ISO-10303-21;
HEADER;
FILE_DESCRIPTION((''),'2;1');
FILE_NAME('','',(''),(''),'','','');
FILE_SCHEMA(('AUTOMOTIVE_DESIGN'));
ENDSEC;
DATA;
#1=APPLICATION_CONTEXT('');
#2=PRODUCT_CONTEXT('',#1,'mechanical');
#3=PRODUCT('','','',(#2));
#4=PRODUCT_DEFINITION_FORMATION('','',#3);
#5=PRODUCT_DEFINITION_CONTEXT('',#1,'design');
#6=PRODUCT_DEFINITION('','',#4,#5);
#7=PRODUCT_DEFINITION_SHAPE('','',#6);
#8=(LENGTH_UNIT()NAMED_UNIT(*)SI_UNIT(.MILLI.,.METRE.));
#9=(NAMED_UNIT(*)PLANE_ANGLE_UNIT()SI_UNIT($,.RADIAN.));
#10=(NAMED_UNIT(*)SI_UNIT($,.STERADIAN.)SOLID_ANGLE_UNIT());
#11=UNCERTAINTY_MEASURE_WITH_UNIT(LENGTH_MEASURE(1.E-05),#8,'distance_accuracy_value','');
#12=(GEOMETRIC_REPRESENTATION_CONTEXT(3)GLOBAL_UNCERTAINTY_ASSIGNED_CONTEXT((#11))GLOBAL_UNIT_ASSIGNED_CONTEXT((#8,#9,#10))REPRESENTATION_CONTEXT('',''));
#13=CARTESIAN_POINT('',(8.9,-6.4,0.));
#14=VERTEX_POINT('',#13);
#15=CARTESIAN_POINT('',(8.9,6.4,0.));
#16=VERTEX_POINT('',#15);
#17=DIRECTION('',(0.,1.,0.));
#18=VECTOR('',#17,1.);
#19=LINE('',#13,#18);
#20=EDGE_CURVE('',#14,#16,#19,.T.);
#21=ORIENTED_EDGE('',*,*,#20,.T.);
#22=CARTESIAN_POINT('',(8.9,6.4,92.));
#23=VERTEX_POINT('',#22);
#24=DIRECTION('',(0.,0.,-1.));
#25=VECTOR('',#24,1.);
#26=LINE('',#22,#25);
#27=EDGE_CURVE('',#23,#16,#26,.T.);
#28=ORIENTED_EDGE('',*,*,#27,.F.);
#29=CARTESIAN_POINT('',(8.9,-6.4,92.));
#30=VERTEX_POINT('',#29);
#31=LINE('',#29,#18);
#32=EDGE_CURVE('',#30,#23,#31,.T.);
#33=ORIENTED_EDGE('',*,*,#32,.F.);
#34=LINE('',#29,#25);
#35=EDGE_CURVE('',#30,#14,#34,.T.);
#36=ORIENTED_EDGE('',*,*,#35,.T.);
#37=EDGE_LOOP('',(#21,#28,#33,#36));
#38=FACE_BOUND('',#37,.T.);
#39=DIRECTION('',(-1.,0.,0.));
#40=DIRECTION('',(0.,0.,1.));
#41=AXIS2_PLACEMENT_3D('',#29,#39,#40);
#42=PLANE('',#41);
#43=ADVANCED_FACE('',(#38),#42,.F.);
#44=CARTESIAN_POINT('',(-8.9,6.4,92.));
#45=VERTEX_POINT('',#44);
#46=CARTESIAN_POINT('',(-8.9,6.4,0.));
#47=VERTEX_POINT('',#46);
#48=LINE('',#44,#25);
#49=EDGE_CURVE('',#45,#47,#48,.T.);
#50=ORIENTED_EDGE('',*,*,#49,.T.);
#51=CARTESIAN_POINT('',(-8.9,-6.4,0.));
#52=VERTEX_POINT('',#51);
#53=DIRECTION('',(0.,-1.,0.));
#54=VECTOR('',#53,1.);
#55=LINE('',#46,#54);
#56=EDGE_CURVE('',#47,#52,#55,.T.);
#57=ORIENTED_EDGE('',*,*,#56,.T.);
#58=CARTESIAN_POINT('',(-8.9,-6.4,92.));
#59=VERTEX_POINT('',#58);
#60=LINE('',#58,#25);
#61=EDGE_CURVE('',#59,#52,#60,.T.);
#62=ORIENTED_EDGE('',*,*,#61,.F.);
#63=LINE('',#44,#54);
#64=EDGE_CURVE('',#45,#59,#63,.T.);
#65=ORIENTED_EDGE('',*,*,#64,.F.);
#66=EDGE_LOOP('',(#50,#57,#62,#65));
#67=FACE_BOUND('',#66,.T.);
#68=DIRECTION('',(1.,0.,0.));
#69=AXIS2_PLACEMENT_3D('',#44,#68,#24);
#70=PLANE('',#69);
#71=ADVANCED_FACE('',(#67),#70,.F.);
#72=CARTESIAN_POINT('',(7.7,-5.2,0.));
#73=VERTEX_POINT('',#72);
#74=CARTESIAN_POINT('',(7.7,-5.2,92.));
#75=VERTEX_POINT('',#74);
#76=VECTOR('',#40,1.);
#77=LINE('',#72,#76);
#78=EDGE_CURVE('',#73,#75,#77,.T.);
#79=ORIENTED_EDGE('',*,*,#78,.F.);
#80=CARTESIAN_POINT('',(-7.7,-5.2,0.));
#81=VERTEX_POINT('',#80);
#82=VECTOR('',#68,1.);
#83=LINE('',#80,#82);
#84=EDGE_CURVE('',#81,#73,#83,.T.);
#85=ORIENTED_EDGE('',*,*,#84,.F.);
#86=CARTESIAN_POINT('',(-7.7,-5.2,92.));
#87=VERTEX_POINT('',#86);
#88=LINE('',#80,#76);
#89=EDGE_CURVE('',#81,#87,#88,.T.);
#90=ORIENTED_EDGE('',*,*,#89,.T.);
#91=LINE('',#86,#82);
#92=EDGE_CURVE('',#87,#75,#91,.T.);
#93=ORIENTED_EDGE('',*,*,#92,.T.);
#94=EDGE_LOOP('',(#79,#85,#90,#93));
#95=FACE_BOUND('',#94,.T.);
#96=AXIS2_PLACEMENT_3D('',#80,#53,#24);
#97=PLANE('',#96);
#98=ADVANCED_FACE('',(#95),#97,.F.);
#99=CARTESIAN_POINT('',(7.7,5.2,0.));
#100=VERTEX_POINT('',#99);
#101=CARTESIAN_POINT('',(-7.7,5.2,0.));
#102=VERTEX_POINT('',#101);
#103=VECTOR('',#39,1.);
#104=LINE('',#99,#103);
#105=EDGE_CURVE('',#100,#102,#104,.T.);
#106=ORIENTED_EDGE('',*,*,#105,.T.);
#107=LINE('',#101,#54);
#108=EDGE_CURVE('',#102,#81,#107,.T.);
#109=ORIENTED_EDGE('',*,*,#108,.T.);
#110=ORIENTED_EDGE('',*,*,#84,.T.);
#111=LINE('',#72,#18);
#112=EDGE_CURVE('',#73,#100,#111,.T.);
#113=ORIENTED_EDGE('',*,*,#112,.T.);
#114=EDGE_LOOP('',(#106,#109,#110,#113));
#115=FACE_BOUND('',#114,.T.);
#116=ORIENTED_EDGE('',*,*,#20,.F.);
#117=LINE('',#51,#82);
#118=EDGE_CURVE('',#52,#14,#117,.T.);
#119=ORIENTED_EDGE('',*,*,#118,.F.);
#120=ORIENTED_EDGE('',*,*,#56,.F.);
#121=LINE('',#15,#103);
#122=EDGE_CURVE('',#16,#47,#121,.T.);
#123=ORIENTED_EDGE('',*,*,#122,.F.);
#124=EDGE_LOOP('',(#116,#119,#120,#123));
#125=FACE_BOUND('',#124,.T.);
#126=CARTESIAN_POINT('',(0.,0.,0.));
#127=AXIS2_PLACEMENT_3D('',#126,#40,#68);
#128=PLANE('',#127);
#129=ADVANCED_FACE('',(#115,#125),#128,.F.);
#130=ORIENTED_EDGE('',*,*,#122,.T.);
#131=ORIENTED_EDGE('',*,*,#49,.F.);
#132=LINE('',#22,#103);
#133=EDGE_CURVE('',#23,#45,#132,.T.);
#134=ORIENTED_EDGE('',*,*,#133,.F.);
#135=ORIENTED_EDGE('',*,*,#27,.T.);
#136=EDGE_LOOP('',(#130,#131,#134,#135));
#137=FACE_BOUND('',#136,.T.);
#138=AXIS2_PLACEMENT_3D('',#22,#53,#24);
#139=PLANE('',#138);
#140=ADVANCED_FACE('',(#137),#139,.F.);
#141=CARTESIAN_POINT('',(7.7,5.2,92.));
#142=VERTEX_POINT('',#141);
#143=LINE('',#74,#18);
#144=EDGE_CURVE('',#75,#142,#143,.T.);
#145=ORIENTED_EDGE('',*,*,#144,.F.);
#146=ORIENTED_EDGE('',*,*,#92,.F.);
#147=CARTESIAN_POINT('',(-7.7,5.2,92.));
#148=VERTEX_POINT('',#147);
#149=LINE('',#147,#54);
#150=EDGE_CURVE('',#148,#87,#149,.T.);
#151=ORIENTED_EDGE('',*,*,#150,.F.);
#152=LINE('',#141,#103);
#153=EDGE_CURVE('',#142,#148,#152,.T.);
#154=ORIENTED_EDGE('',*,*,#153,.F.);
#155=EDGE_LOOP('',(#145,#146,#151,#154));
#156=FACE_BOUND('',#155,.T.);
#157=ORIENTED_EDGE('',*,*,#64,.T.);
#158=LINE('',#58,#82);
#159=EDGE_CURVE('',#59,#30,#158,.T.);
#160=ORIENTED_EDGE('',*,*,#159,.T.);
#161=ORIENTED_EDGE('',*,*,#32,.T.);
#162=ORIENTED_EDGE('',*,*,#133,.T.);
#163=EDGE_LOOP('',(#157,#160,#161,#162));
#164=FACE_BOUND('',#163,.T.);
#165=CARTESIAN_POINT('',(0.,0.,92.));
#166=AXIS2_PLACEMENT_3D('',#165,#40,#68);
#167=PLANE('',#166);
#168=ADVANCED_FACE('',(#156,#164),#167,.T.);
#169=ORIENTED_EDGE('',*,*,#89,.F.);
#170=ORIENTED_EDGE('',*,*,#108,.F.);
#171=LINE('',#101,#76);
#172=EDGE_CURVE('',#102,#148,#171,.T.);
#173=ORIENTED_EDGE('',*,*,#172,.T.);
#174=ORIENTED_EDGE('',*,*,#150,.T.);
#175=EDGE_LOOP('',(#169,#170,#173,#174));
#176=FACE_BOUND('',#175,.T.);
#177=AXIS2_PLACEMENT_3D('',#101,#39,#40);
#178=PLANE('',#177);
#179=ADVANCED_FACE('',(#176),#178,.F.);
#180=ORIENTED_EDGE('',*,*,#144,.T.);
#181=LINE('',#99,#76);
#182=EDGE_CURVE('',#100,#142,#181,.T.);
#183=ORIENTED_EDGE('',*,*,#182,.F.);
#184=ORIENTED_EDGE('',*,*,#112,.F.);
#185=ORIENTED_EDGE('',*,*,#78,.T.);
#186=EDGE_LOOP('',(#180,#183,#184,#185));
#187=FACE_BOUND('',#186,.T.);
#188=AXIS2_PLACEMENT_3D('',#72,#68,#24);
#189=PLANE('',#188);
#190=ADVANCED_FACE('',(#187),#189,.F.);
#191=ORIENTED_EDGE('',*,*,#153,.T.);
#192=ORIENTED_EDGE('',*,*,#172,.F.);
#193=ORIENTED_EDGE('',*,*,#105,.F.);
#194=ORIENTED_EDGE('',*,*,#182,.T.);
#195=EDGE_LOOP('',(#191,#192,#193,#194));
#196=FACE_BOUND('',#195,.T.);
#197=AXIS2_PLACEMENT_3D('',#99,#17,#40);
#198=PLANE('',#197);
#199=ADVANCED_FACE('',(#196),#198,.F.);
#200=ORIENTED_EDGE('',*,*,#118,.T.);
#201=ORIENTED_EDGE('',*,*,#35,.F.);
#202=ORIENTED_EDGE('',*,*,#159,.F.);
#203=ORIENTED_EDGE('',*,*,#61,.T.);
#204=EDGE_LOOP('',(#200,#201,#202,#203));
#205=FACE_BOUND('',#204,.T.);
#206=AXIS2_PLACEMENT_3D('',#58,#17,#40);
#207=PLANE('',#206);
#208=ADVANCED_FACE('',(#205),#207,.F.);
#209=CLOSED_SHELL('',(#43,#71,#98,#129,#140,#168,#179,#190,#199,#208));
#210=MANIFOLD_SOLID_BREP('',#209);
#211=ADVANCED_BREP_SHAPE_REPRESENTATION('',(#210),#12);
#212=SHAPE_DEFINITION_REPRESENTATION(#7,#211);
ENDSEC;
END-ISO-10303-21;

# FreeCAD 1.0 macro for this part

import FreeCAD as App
import Part
import Sketcher

V = App.Vector

doc = App.newDocument("Part")
body = doc.addObject("PartDesign::Body", "Body")

# Sketch on XY plane
sketch1 = doc.addObject("Sketcher::SketchObject", "Sketch")
body.addObject(sketch1)
sketch1.AttachmentSupport = (doc.XY_Plane, [""])
sketch1.MapMode = "FlatFace"
sketch1.addGeometry(Part.LineSegment(V(-8.9, 6.4, 0), V(-8.9, -6.4, 0)), False)
sketch1.addGeometry(Part.LineSegment(V(-8.9, -6.4, 0), V(8.9, -6.4, 0)), False)
sketch1.addGeometry(Part.LineSegment(V(8.9, -6.4, 0), V(8.9, 6.4, 0)), False)
sketch1.addGeometry(Part.LineSegment(V(8.9, 6.4, 0), V(-8.9, 6.4, 0)), False)
sketch1.addConstraint(Sketcher.Constraint("Coincident", 0, 2, 1, 1))
sketch1.addConstraint(Sketcher.Constraint("Coincident", 1, 2, 2, 1))
sketch1.addConstraint(Sketcher.Constraint("Coincident", 2, 2, 3, 1))
sketch1.addConstraint(Sketcher.Constraint("Coincident", 3, 2, 0, 1))
sketch1.addConstraint(Sketcher.Constraint("Vertical", 0))
sketch1.addConstraint(Sketcher.Constraint("Horizontal", 1))
sketch1.addConstraint(Sketcher.Constraint("Vertical", 2))
sketch1.addConstraint(Sketcher.Constraint("Horizontal", 3))
sketch1.addConstraint(Sketcher.Constraint("Symmetric", 0, 2, 2, 2, -1, 1))
sketch1.addConstraint(Sketcher.Constraint("DistanceX", 1, 1, 1, 2, 17.8))
sketch1.addConstraint(Sketcher.Constraint("DistanceY", 0, 2, 0, 1, 12.8))
pad1 = doc.addObject("PartDesign::Pad", "Pad")
body.addObject(pad1)
pad1.Profile = sketch1
pad1.Length = 92

# Sketch on XY plane
sketch2 = doc.addObject("Sketcher::SketchObject", "Sketch001")
body.addObject(sketch2)
sketch2.AttachmentSupport = (doc.XY_Plane, [""])
sketch2.MapMode = "FlatFace"
sketch2.AttachmentOffset = App.Placement(V(0, 0, 92), App.Rotation())
sketch2.addGeometry(Part.LineSegment(V(-7.7, 5.2, 0), V(-7.7, -5.2, 0)), False)
sketch2.addGeometry(Part.LineSegment(V(-7.7, -5.2, 0), V(7.7, -5.2, 0)), False)
sketch2.addGeometry(Part.LineSegment(V(7.7, -5.2, 0), V(7.7, 5.2, 0)), False)
sketch2.addGeometry(Part.LineSegment(V(7.7, 5.2, 0), V(-7.7, 5.2, 0)), False)
sketch2.addConstraint(Sketcher.Constraint("Coincident", 0, 2, 1, 1))
sketch2.addConstraint(Sketcher.Constraint("Coincident", 1, 2, 2, 1))
sketch2.addConstraint(Sketcher.Constraint("Coincident", 2, 2, 3, 1))
sketch2.addConstraint(Sketcher.Constraint("Coincident", 3, 2, 0, 1))
sketch2.addConstraint(Sketcher.Constraint("Vertical", 0))
sketch2.addConstraint(Sketcher.Constraint("Horizontal", 1))
sketch2.addConstraint(Sketcher.Constraint("Vertical", 2))
sketch2.addConstraint(Sketcher.Constraint("Horizontal", 3))
sketch2.addConstraint(Sketcher.Constraint("Symmetric", 0, 2, 2, 2, -1, 1))
sketch2.addConstraint(Sketcher.Constraint("DistanceX", 1, 1, 1, 2, 15.4))
sketch2.addConstraint(Sketcher.Constraint("DistanceY", 0, 2, 0, 1, 10.4))
pocket1 = doc.addObject("PartDesign::Pocket", "Pocket")
body.addObject(pocket1)
pocket1.Profile = sketch2
pocket1.Type = "ThroughAll"

doc.recompute()
